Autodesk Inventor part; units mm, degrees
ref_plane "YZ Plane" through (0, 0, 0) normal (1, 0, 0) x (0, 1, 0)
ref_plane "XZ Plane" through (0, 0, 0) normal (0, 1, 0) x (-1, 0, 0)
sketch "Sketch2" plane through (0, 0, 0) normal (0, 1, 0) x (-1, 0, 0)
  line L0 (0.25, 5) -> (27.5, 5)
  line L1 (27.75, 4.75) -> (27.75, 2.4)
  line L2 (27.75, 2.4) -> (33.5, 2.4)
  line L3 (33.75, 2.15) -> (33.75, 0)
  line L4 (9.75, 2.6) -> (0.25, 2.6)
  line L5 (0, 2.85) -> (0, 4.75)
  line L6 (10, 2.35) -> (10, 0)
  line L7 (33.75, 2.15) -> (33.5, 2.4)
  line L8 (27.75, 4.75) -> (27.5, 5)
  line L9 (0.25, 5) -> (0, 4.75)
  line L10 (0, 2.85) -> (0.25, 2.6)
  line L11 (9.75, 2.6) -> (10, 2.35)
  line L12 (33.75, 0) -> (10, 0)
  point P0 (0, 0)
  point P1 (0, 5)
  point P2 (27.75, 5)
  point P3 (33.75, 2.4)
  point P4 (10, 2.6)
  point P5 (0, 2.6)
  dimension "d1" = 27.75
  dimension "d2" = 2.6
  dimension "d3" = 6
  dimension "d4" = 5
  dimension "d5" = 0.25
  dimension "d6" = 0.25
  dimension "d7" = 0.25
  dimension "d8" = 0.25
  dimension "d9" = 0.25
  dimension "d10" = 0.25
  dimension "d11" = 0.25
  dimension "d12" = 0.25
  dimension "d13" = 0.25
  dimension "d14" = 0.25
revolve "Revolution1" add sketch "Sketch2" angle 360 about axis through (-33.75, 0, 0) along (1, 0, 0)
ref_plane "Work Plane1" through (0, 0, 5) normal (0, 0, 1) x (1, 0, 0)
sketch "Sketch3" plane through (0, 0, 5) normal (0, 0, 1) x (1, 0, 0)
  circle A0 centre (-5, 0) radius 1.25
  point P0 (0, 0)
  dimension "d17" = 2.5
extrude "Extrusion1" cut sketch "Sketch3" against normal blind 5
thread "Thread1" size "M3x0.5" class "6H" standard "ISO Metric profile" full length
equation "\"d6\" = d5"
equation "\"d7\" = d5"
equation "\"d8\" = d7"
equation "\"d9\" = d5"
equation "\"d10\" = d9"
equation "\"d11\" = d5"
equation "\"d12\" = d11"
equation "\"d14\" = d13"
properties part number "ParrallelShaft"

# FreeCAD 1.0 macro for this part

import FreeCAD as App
import Part
import Sketcher

V = App.Vector

doc = App.newDocument("Part")
params = doc.addObject("Spreadsheet::Sheet", "Params")
for row, (alias, value) in enumerate([
    ("sketch1_width", "9.5 mm"),
    ("revolution_angle", "360 deg"),
    ("sketch2_diameter", "2.5 mm"),
    ("pocket1_length", "5 mm"),
], start=1):
    params.set(f"A{row}", alias)
    params.set(f"B{row}", "=" + value)
    params.setAlias(f"B{row}", alias)

body = doc.addObject("PartDesign::Body", "Body")

sketch1 = body.newObject("Sketcher::SketchObject", "Sketch")
sketch1.AttachmentSupport = (doc.getObject("XZ_Plane"), [""])
sketch1.MapMode = "FlatFace"
sketch1.addGeometry(Part.LineSegment(V(-27.5, 5, 0), V(-0.25, 5, 0)), False)
sketch1.addGeometry(Part.LineSegment(V(-0.25, 5, 0), V(0, 4.75, 0)), False)
sketch1.addGeometry(Part.LineSegment(V(0, 4.75, 0), V(0, 2.85, 0)), False)
sketch1.addGeometry(Part.LineSegment(V(0, 2.85, 0), V(-0.25, 2.6, 0)), False)
sketch1.addGeometry(Part.LineSegment(V(-0.25, 2.6, 0), V(-9.75, 2.6, 0)), False)
sketch1.addGeometry(Part.LineSegment(V(-9.75, 2.6, 0), V(-10, 2.35, 0)), False)
sketch1.addGeometry(Part.LineSegment(V(-10, 2.35, 0), V(-10, 0, 0)), False)
sketch1.addGeometry(Part.LineSegment(V(-10, 0, 0), V(-33.75, 0, 0)), False)
sketch1.addGeometry(Part.LineSegment(V(-33.75, 0, 0), V(-33.75, 2.15, 0)), False)
sketch1.addGeometry(Part.LineSegment(V(-33.75, 2.15, 0), V(-33.5, 2.4, 0)), False)
sketch1.addGeometry(Part.LineSegment(V(-33.5, 2.4, 0), V(-27.75, 2.4, 0)), False)
sketch1.addGeometry(Part.LineSegment(V(-27.75, 2.4, 0), V(-27.75, 4.75, 0)), False)
sketch1.addGeometry(Part.LineSegment(V(-27.75, 4.75, 0), V(-27.5, 5, 0)), False)
sketch1.addConstraint(Sketcher.Constraint("Coincident", 0, 2, 1, 1))
sketch1.addConstraint(Sketcher.Constraint("Coincident", 1, 2, 2, 1))
sketch1.addConstraint(Sketcher.Constraint("Coincident", 2, 2, 3, 1))
sketch1.addConstraint(Sketcher.Constraint("Coincident", 3, 2, 4, 1))
sketch1.addConstraint(Sketcher.Constraint("Coincident", 4, 2, 5, 1))
sketch1.addConstraint(Sketcher.Constraint("Coincident", 5, 2, 6, 1))
sketch1.addConstraint(Sketcher.Constraint("Coincident", 6, 2, 7, 1))
sketch1.addConstraint(Sketcher.Constraint("Coincident", 7, 2, 8, 1))
sketch1.addConstraint(Sketcher.Constraint("Coincident", 8, 2, 9, 1))
sketch1.addConstraint(Sketcher.Constraint("Coincident", 9, 2, 10, 1))
sketch1.addConstraint(Sketcher.Constraint("Coincident", 10, 2, 11, 1))
sketch1.addConstraint(Sketcher.Constraint("Coincident", 11, 2, 12, 1))
sketch1.addConstraint(Sketcher.Constraint("Coincident", 12, 2, 0, 1))
sketch1.addConstraint(Sketcher.Constraint("Horizontal", 0))
sketch1.addConstraint(Sketcher.Constraint("Vertical", 2))
sketch1.addConstraint(Sketcher.Constraint("Horizontal", 4))
sketch1.addConstraint(Sketcher.Constraint("Vertical", 6))
sketch1.addConstraint(Sketcher.Constraint("Horizontal", 7))
sketch1.addConstraint(Sketcher.Constraint("Vertical", 8))
sketch1.addConstraint(Sketcher.Constraint("Horizontal", 10))
sketch1.addConstraint(Sketcher.Constraint("Vertical", 11))
sketch1.addConstraint(Sketcher.Constraint("PointOnObject", 1, 2, -2))
sketch1.addConstraint(Sketcher.Constraint("PointOnObject", 6, 2, -1))
sketch1.addConstraint(Sketcher.Constraint("Perpendicular", 1, 3))
sketch1.addConstraint(Sketcher.Constraint("Parallel", 3, 5))
sketch1.addConstraint(Sketcher.Constraint("Parallel", 5, 9))
sketch1.addConstraint(Sketcher.Constraint("Parallel", 9, 12))
sketch1.addConstraint(Sketcher.Constraint("Horizontal", 1, 2, 11, 2))
sketch1.addConstraint(Sketcher.Constraint("Vertical", 0, 2, 3, 2))
sketch1.addConstraint(Sketcher.Constraint("Equal", 6, 11))
sketch1.addConstraint(Sketcher.Constraint("Equal", 1, 3))
sketch1.addConstraint(Sketcher.Constraint("Equal", 3, 5))
sketch1.addConstraint(Sketcher.Constraint("Equal", 5, 9))
sketch1.addConstraint(Sketcher.Constraint("DistanceY", -1, 1, 0, 2, 5.0))
sketch1.addConstraint(Sketcher.Constraint("DistanceX", 8, 2, 10, 2, 6.0))
sketch1.addConstraint(Sketcher.Constraint("DistanceY", -1, 1, 3, 2, 2.6))
sketch1.addConstraint(Sketcher.Constraint("DistanceX", 0, 2, -1, 1, 0.25))
sketch1.addConstraint(Sketcher.Constraint("DistanceX", 10, 2, -1, 1, 27.75))
sketch1.addConstraint(Sketcher.Constraint("DistanceX", 4, 2, 4, 1, 9.5))
sketch1.setExpression("Constraints[38]", "Params.sketch1_width")
revolution = body.newObject("PartDesign::Revolution", "Revolution")
revolution.Profile = sketch1
revolution.ReferenceAxis = (sketch1, ["H_Axis"])
revolution.setExpression("Angle", "Params.revolution_angle")

sketch2 = body.newObject("Sketcher::SketchObject", "Sketch001")
sketch2.AttachmentSupport = (doc.getObject("XY_Plane"), [""])
sketch2.MapMode = "FlatFace"
sketch2.AttachmentOffset = App.Placement(V(0, 0, 5), App.Rotation())
sketch2.addGeometry(Part.Circle(V(-5, 0, 0), V(0, 0, 1), 1.25), False)
sketch2.addConstraint(Sketcher.Constraint("PointOnObject", 0, 3, -1))
sketch2.addConstraint(Sketcher.Constraint("Diameter", 0, 2.5))
sketch2.addConstraint(Sketcher.Constraint("DistanceX", 0, 3, -1, 1, 5.0))
sketch2.setExpression("Constraints[1]", "Params.sketch2_diameter")
pocket1 = body.newObject("PartDesign::Pocket", "Pocket")
pocket1.Profile = sketch2
pocket1.setExpression("Length", "Params.pocket1_length")

doc.recompute()
